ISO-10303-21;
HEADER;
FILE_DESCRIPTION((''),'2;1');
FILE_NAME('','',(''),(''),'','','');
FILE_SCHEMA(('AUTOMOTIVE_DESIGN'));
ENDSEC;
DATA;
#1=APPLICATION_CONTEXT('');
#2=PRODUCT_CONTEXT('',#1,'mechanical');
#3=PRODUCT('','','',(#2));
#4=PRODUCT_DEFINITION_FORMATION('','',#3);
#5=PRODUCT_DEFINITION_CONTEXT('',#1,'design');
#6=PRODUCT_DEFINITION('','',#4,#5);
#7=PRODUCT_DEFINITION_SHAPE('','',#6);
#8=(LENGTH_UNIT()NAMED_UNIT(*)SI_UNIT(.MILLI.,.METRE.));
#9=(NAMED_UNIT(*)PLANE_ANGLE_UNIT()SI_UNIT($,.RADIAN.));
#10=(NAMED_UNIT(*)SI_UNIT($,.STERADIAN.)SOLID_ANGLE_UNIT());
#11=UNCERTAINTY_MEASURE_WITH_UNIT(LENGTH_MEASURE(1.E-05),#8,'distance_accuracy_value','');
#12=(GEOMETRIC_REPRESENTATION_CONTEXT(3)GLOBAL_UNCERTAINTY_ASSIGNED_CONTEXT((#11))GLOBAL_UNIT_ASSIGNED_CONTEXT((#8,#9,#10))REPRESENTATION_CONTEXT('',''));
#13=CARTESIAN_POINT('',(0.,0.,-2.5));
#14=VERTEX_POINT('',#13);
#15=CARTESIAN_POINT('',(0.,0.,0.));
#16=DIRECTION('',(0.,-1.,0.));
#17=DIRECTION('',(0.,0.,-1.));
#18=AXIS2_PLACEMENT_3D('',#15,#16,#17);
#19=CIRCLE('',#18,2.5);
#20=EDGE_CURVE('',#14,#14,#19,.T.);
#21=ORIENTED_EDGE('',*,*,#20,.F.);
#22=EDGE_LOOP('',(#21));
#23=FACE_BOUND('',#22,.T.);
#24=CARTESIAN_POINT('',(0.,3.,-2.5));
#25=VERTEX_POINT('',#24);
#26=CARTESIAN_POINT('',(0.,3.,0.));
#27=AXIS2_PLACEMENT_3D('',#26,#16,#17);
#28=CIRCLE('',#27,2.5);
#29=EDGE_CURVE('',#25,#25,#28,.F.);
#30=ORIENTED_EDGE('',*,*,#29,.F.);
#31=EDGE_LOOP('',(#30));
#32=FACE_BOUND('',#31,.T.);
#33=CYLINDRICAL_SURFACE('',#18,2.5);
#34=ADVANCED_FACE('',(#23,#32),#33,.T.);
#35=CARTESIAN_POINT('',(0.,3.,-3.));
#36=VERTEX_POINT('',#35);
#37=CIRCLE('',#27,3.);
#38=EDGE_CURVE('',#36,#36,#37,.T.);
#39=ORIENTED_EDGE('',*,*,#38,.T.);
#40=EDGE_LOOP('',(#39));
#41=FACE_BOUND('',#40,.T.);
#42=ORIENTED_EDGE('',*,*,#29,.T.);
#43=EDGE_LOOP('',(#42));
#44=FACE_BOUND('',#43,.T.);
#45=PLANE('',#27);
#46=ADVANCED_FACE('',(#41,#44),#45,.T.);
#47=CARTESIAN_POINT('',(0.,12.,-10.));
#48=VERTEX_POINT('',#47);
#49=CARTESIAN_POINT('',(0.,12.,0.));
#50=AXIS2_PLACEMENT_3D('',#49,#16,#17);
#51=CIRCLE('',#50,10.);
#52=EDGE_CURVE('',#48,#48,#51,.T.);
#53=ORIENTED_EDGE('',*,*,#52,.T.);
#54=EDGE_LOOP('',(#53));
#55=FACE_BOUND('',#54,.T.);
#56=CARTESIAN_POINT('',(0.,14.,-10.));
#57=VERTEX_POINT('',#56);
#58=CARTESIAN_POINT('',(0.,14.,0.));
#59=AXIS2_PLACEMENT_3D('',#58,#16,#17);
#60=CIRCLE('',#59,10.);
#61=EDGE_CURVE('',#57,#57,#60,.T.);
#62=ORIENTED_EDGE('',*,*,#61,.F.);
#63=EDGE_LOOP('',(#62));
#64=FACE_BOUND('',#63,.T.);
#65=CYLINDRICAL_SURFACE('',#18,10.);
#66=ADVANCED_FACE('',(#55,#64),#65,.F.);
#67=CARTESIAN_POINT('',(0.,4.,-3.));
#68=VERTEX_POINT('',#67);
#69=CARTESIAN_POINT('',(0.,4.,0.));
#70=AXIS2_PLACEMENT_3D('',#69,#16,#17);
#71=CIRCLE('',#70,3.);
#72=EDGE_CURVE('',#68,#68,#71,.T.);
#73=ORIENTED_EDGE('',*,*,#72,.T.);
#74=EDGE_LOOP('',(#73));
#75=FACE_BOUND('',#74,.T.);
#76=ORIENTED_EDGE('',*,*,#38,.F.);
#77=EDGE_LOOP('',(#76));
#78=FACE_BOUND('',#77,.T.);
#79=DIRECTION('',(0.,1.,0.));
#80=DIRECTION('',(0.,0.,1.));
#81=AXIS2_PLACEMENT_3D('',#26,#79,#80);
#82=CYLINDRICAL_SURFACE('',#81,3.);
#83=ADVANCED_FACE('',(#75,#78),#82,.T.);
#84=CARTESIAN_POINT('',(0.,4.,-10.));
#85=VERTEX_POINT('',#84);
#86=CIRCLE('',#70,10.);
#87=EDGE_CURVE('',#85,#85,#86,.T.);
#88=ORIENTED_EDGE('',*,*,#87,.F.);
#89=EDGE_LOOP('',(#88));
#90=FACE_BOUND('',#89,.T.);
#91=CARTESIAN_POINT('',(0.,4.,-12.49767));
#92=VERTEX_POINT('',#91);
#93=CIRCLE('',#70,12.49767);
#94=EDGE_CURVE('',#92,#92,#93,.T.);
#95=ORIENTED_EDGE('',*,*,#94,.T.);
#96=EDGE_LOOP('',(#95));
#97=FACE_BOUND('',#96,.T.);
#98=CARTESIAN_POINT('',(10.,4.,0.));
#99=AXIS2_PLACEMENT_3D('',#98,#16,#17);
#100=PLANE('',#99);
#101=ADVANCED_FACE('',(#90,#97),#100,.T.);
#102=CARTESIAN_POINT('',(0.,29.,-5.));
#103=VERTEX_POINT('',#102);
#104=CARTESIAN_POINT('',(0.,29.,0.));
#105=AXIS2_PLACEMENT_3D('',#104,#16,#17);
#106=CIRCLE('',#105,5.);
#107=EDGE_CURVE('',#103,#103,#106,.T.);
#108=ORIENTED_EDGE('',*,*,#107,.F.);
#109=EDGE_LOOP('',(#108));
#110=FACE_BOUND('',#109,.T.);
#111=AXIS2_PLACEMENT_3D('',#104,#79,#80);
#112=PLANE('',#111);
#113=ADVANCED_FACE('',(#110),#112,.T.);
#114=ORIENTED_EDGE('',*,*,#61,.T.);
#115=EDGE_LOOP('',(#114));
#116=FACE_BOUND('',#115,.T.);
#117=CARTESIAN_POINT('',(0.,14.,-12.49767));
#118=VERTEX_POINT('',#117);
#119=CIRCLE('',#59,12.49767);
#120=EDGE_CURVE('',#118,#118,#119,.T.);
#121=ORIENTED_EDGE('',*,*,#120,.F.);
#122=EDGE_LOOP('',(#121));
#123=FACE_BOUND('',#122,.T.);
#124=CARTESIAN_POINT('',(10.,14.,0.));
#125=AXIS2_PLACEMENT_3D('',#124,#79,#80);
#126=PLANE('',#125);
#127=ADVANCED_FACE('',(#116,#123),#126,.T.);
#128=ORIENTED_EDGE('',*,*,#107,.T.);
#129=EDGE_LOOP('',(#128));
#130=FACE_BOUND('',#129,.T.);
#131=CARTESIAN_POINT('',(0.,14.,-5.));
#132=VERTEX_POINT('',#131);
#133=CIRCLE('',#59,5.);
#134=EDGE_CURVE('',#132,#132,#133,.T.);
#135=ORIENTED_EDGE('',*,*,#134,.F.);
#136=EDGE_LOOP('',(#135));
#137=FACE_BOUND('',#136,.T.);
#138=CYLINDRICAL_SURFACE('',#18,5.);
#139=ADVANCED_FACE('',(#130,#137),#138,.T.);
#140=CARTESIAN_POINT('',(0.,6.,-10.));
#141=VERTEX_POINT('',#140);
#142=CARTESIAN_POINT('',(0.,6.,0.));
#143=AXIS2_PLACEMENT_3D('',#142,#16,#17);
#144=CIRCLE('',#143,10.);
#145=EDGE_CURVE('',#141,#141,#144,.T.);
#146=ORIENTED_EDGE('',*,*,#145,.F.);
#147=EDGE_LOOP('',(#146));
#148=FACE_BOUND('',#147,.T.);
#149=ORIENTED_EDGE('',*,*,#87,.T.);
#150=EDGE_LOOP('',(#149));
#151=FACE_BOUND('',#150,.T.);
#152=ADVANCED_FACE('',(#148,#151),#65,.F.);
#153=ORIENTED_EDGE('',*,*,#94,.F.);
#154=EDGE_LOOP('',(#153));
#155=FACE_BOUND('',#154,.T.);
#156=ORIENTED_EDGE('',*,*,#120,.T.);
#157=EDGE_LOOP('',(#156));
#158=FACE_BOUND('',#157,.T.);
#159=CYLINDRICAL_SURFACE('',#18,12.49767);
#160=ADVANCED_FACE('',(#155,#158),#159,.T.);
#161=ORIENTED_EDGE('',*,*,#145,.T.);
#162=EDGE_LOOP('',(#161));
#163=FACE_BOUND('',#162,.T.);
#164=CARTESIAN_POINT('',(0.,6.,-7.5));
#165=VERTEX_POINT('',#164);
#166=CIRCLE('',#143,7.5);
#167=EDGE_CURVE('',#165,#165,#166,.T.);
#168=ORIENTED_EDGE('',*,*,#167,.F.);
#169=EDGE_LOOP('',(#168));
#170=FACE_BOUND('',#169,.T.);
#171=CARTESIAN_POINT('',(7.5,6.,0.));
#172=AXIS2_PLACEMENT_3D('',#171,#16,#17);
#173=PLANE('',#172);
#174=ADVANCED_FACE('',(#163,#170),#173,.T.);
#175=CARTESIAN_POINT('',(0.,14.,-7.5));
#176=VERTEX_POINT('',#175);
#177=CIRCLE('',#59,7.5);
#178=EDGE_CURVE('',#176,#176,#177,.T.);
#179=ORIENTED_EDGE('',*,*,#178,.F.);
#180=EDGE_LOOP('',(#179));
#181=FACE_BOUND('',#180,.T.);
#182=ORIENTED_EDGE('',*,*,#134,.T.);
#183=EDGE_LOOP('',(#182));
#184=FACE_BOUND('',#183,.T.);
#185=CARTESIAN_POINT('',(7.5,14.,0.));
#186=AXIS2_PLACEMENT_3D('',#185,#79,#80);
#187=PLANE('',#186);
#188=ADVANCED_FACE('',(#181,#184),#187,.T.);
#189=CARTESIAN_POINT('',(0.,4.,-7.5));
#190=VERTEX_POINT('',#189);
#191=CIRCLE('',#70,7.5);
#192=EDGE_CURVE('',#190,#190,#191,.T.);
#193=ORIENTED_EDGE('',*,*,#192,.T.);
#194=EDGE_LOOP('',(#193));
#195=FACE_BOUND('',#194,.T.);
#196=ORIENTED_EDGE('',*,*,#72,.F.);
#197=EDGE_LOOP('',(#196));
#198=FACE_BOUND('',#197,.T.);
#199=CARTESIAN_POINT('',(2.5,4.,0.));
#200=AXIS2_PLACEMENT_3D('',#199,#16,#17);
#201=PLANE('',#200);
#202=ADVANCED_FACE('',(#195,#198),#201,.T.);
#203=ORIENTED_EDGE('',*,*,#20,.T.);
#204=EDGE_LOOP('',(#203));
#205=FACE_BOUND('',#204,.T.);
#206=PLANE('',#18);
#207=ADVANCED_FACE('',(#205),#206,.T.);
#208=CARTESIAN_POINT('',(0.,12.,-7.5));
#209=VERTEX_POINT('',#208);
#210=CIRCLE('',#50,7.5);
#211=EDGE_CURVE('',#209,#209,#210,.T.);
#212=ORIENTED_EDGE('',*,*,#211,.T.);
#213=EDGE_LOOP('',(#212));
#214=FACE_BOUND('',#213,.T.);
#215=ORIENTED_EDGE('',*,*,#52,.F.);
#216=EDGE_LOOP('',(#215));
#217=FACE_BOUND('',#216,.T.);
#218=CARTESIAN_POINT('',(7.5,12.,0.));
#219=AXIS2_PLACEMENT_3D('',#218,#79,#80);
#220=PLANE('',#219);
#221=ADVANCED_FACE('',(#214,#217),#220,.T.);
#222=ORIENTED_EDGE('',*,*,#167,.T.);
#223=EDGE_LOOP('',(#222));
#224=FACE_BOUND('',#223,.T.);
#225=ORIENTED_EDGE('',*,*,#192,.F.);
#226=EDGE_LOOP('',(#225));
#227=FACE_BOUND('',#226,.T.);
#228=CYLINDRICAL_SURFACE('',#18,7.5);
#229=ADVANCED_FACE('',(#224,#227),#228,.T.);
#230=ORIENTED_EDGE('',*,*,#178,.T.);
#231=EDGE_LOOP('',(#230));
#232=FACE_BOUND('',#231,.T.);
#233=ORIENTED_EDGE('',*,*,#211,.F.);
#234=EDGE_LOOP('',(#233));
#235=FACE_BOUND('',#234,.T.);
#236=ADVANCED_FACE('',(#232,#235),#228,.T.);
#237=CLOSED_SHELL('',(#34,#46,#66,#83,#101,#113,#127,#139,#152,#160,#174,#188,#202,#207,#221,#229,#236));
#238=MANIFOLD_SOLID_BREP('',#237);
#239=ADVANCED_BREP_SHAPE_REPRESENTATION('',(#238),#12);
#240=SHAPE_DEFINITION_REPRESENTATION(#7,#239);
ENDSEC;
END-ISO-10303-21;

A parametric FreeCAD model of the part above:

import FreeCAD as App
import Part
import Sketcher
from FreeCAD import Vector


def add_polygon(sketch, points):
    """Adds a closed chain of lines whose ends are joined by coincident constraints."""
    first, n = sketch.GeometryCount, len(points)
    for a, b in zip(points, points[1:] + points[:1]):
        sketch.addGeometry(Part.LineSegment(App.Vector(*a, 0), App.Vector(*b, 0)), False)
    for i in range(n):
        sketch.addConstraint(Sketcher.Constraint("Coincident", first + i, 2, first + (i + 1) % n, 1))

doc = App.newDocument("Part")
body = doc.addObject("PartDesign::Body", "Body")

# Sketch on XY plane
sketch1 = body.newObject("Sketcher::SketchObject", "Sketch")
sketch1.AttachmentSupport = (doc.getObject("XY_Plane"), [""])
sketch1.MapMode = "FlatFace"
add_polygon(sketch1, [(0, 0), (2.5, 0), (2.5, 4), (7.5, 4), (7.5, 6), (10, 6), (10, 4), (12.5, 4), (12.5, 14), (10, 14), (10, 12), (7.5, 12), (7.5, 14), (5, 14), (5, 29), (0, 29)])  # lines 0-15
sketch1.addConstraint(Sketcher.Constraint("Horizontal", 0))
sketch1.addConstraint(Sketcher.Constraint("Vertical", 1))
sketch1.addConstraint(Sketcher.Constraint("Horizontal", 2))
sketch1.addConstraint(Sketcher.Constraint("Vertical", 3))
sketch1.addConstraint(Sketcher.Constraint("Horizontal", 4))
sketch1.addConstraint(Sketcher.Constraint("Vertical", 5))
sketch1.addConstraint(Sketcher.Constraint("Horizontal", 6))
sketch1.addConstraint(Sketcher.Constraint("Vertical", 7))
sketch1.addConstraint(Sketcher.Constraint("Horizontal", 8))
sketch1.addConstraint(Sketcher.Constraint("Vertical", 9))
sketch1.addConstraint(Sketcher.Constraint("Horizontal", 10))
sketch1.addConstraint(Sketcher.Constraint("Vertical", 11))
sketch1.addConstraint(Sketcher.Constraint("Horizontal", 12))
sketch1.addConstraint(Sketcher.Constraint("Vertical", 13))
sketch1.addConstraint(Sketcher.Constraint("Horizontal", 14))
sketch1.addConstraint(Sketcher.Constraint("Vertical", 15))
sketch1.addConstraint(Sketcher.Constraint("Coincident", 15, 2, -1, 1))
sketch1.addConstraint(Sketcher.Constraint("Horizontal", 2, 2, 5, 2))
sketch1.addConstraint(Sketcher.Constraint("Horizontal", 8, 2, 11, 2))
sketch1.addConstraint(Sketcher.Constraint("Vertical", 5, 2, 8, 2))
sketch1.addConstraint(Sketcher.Constraint("Vertical", 3, 2, 10, 2))
sketch1.addConstraint(Sketcher.Constraint("Equal", 0, 4))
sketch1.addConstraint(Sketcher.Constraint("Equal", 10, 12))
sketch1.addConstraint(Sketcher.Constraint("Equal", 5, 9))
sketch1.addConstraint(Sketcher.Constraint("DistanceX", 2, 1, 2, 2, 5.0))
sketch1.addConstraint(Sketcher.Constraint("DistanceY", 1, 1, 1, 2, 4.0))
sketch1.addConstraint(Sketcher.Constraint("DistanceY", 3, 1, 3, 2, 2.0))
sketch1.addConstraint(Sketcher.Constraint("DistanceY", 7, 1, 7, 2, 10.0))
sketch1.addConstraint(Sketcher.Constraint("DistanceY", 13, 1, 13, 2, 15.0))
sketch1.addConstraint(Sketcher.Constraint("DistanceX", 0, 1, 0, 2, 2.5))
sketch1.addConstraint(Sketcher.Constraint("DistanceX", 6, 1, 6, 2, 2.49767))
revolution = body.newObject("PartDesign::Revolution", "Revolution")
revolution.Profile = sketch1
revolution.ReferenceAxis = (sketch1, ["V_Axis"])
revolution.Angle = 360

# Sketch on XZ plane
sketch2 = body.newObject("Sketcher::SketchObject", "Sketch001")
sketch2.AttachmentSupport = (doc.getObject("XZ_Plane"), [""])
sketch2.MapMode = "FlatFace"
sketch2.AttachmentOffset = App.Placement(Vector(0, 0, -4), App.Rotation())
sketch2.addGeometry(Part.Circle(Vector(0, 0, 0), Vector(0, 0, 1), 3), False)
sketch2.addConstraint(Sketcher.Constraint("Coincident", 0, 3, -1, 1))
sketch2.addConstraint(Sketcher.Constraint("Diameter", 0, 6.0))
pad1 = body.newObject("PartDesign::Pad", "Pad")
pad1.Profile = sketch2
pad1.Length = 1

doc.recompute()
